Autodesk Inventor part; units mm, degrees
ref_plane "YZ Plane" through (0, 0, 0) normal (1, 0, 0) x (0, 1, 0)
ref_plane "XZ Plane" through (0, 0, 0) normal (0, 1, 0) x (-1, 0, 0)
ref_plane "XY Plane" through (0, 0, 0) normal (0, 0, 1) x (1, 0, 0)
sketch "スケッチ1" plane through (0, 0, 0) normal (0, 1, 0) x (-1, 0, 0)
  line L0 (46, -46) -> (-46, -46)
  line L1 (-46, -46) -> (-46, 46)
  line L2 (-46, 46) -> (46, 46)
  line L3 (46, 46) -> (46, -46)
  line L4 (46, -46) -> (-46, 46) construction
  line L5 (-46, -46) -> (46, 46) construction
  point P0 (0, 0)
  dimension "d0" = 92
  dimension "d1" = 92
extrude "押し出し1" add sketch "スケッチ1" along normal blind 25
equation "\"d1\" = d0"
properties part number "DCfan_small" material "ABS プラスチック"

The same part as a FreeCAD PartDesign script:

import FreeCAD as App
import Part
import Sketcher

doc = App.newDocument("Part")
body = doc.addObject("PartDesign::Body", "Body")

sketch1 = body.newObject("Sketcher::SketchObject", "Sketch")
sketch1.AttachmentSupport = (doc.getObject("XZ_Plane"), [""])
sketch1.MapMode = "FlatFace"
sketch1.addGeometry([
    Part.LineSegment(App.Vector(46, -46, 0), App.Vector(-46, -46, 0)),
    Part.LineSegment(App.Vector(-46, -46, 0), App.Vector(-46, 46, 0)),
    Part.LineSegment(App.Vector(-46, 46, 0), App.Vector(46, 46, 0)),
    Part.LineSegment(App.Vector(46, 46, 0), App.Vector(46, -46, 0)),
], False)
sketch1.addConstraint([
    Sketcher.Constraint("Coincident", 0, 2, 1, 1),
    Sketcher.Constraint("Coincident", 1, 2, 2, 1),
    Sketcher.Constraint("Coincident", 2, 2, 3, 1),
    Sketcher.Constraint("Coincident", 3, 2, 0, 1),
    Sketcher.Constraint("Horizontal", 0),
    Sketcher.Constraint("Vertical", 1),
    Sketcher.Constraint("Horizontal", 2),
    Sketcher.Constraint("Vertical", 3),
    Sketcher.Constraint("Symmetric", 0, 2, 2, 2, -1, 1),
    Sketcher.Constraint("Equal", 2, 1),
    Sketcher.Constraint("DistanceX", 0, 2, 0, 1, 92.0),
])
pad1 = body.newObject("PartDesign::Pad", "Pad")
pad1.Profile = sketch1
pad1.Length = 25
pad1.Reversed = True

doc.recompute()
